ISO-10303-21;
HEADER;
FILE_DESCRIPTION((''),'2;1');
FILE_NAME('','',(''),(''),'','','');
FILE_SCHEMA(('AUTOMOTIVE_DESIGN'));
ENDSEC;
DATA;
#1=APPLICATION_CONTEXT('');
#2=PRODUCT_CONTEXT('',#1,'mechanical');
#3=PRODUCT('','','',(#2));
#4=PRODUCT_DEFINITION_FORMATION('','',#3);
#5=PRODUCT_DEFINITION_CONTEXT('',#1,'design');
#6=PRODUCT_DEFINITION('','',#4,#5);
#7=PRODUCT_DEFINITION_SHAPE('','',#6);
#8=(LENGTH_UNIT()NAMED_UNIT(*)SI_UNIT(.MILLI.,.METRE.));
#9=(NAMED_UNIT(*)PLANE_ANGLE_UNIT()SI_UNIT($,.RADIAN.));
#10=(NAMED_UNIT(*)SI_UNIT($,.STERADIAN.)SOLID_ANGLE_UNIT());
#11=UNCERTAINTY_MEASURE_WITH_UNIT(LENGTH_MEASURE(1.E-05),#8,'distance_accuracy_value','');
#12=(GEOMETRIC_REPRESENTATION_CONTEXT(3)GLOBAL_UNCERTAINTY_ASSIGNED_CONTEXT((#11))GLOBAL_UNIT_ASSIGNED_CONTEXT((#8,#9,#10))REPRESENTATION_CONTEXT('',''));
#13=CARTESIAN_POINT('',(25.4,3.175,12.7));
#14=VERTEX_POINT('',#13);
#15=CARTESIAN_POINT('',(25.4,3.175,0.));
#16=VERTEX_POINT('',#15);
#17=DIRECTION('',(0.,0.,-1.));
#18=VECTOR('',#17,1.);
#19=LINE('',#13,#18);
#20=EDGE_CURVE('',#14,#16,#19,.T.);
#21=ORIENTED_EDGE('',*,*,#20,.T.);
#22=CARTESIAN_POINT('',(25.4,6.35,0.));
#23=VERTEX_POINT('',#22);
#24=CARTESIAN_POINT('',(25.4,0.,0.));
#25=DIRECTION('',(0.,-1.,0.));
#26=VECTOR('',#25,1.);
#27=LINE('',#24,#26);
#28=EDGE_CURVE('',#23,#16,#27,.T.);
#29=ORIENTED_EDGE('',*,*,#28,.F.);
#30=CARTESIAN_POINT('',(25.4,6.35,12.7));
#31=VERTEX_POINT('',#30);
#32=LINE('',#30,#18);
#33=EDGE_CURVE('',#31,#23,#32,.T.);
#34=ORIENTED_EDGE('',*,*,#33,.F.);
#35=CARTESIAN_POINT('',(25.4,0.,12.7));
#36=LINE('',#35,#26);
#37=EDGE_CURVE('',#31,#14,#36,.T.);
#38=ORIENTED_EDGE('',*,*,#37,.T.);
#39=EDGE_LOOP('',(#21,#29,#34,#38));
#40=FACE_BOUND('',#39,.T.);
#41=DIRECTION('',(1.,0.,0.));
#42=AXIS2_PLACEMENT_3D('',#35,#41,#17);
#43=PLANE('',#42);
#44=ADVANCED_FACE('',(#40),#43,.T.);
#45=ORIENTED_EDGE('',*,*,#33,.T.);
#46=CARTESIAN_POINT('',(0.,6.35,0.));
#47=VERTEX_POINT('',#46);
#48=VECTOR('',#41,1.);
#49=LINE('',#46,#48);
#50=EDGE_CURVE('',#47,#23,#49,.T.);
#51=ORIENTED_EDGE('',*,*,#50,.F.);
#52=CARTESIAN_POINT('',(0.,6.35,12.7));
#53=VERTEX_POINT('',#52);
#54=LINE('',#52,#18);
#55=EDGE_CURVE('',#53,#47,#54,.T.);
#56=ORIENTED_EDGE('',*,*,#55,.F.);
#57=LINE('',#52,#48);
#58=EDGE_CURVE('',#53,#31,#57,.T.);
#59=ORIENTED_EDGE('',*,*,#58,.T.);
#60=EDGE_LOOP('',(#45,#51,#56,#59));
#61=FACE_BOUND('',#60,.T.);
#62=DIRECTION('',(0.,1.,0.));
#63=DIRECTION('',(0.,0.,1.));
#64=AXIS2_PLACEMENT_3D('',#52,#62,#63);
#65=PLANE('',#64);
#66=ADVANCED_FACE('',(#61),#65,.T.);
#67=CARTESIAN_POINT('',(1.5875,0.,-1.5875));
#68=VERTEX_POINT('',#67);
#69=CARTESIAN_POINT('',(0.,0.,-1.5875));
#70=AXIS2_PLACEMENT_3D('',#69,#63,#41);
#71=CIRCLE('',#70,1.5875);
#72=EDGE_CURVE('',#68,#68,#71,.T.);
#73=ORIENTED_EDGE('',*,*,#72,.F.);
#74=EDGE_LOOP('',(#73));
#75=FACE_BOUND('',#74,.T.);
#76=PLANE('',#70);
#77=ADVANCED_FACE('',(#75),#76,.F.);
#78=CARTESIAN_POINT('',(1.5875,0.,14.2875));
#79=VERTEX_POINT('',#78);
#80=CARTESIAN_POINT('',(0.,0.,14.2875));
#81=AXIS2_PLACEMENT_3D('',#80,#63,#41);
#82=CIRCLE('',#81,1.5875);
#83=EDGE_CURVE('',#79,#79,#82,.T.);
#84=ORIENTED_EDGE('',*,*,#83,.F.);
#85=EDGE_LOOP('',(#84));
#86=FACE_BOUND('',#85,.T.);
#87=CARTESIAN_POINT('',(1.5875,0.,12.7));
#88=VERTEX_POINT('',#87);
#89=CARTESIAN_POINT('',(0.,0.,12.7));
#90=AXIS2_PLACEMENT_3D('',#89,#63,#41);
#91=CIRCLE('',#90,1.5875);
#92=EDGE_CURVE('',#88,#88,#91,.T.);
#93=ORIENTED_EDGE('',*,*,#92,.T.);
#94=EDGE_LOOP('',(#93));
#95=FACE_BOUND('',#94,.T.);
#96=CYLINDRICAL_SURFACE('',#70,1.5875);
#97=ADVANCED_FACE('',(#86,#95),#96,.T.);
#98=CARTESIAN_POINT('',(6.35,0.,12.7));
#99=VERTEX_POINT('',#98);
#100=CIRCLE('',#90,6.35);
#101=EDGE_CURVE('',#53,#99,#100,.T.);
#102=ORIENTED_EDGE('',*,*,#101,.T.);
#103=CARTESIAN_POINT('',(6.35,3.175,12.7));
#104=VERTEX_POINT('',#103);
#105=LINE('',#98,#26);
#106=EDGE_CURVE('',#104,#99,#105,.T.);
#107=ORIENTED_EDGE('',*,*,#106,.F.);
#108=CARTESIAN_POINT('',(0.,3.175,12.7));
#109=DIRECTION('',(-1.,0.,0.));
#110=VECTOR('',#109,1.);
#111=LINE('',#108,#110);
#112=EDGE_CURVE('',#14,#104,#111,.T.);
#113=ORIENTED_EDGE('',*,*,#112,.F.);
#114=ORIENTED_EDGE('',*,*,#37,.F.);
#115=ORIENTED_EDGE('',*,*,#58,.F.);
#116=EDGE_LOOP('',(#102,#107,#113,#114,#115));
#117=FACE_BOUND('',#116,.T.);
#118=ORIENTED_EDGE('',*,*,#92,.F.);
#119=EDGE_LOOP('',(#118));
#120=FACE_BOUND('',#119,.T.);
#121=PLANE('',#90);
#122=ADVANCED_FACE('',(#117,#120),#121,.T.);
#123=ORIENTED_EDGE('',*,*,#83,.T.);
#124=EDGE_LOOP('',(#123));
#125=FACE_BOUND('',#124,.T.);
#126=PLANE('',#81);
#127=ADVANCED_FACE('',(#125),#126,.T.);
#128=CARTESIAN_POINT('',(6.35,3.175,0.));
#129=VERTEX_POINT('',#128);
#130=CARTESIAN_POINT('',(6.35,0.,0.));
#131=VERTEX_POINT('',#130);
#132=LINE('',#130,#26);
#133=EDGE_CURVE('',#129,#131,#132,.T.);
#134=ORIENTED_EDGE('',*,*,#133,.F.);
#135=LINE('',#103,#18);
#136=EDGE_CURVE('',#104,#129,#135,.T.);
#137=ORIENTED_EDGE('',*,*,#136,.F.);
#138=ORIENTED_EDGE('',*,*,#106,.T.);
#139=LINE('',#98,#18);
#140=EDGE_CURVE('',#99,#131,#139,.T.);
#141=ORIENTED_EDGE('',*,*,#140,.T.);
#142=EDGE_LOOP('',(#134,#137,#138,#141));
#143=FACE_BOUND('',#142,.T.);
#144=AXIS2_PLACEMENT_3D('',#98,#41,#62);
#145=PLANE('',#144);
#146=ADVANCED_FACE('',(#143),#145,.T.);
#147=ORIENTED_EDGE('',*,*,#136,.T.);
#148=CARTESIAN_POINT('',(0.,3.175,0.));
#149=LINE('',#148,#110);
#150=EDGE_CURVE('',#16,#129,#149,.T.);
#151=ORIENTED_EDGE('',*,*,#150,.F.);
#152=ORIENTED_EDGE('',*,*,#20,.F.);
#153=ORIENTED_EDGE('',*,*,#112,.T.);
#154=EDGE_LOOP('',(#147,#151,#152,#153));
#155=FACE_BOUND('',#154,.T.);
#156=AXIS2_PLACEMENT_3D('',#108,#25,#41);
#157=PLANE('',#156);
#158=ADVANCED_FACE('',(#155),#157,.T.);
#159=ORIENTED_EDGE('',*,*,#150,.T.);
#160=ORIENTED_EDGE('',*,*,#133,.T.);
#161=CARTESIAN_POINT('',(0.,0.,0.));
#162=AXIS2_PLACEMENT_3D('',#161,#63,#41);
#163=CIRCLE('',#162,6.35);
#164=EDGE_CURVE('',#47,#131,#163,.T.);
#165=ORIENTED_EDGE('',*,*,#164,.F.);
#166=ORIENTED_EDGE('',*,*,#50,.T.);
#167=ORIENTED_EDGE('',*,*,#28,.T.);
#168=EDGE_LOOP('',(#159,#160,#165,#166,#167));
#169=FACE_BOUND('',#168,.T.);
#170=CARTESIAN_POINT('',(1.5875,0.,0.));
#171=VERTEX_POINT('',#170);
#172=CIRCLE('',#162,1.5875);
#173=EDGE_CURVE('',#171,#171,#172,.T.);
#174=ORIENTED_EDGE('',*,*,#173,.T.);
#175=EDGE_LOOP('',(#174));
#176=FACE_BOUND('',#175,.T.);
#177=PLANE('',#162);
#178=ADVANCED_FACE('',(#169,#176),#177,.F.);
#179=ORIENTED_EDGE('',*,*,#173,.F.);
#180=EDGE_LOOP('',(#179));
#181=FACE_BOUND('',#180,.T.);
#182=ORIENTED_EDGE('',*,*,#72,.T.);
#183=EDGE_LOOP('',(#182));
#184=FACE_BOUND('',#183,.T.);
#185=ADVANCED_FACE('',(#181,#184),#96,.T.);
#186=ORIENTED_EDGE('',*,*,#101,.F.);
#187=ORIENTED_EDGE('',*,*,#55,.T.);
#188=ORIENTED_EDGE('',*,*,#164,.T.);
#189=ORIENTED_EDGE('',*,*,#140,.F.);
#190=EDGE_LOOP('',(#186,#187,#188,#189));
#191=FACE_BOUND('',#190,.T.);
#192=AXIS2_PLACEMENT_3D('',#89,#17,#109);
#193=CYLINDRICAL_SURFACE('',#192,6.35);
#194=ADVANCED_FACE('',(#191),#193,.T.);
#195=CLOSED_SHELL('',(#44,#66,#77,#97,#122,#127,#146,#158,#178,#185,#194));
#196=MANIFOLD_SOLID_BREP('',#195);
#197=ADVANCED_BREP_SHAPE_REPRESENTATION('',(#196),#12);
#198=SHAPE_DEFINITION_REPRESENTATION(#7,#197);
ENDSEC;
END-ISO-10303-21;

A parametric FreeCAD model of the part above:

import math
import FreeCAD as App
import Part
import Sketcher
Q = App.Units.Quantity

doc = App.newDocument("Part")
body = doc.addObject("PartDesign::Body", "Body")

# Sketch on XY plane
sketch1 = body.newObject("Sketcher::SketchObject", "Sketch")
sketch1.AttachmentSupport = (doc.getObject("XY_Plane"), [""])
sketch1.MapMode = "FlatFace"
sketch1.addGeometry(Part.ArcOfCircle(Part.Circle(App.Vector(0, 0, 0), App.Vector(0, 0, 1), 6.3), math.radians(90), math.radians(360)), False)
sketch1.addGeometry(Part.LineSegment(App.Vector(6.3, 0, 0), App.Vector(6.3, 3.2, 0)), False)
sketch1.addGeometry(Part.LineSegment(App.Vector(6.3, 3.2, 0), App.Vector(25.4, 3.2, 0)), False)
sketch1.addGeometry(Part.LineSegment(App.Vector(25.4, 3.2, 0), App.Vector(25.4, 6.3, 0)), False)
sketch1.addGeometry(Part.LineSegment(App.Vector(25.4, 6.3, 0), App.Vector(0, 6.3, 0)), False)
sketch1.addGeometry(Part.Circle(App.Vector(0, 0, 0), App.Vector(0, 0, 1), 1.6), False)
sketch1.addConstraint(Sketcher.Constraint("Tangent", 0, 2, 1, 1))
sketch1.addConstraint(Sketcher.Constraint("Coincident", 1, 2, 2, 1))
sketch1.addConstraint(Sketcher.Constraint("Coincident", 2, 2, 3, 1))
sketch1.addConstraint(Sketcher.Constraint("Coincident", 3, 2, 4, 1))
sketch1.addConstraint(Sketcher.Constraint("Tangent", 4, 2, 0, 1))
sketch1.addConstraint(Sketcher.Constraint("Vertical", 1))
sketch1.addConstraint(Sketcher.Constraint("Horizontal", 2))
sketch1.addConstraint(Sketcher.Constraint("Vertical", 3))
sketch1.addConstraint(Sketcher.Constraint("Horizontal", 4))
sketch1.addConstraint(Sketcher.Constraint("Coincident", 0, 3, -1, 1))
sketch1.addConstraint(Sketcher.Constraint("Coincident", 5, 3, -1, 1))
sketch1.addConstraint(Sketcher.Constraint("Equal", 1, 3))
sketch1.addConstraint(Sketcher.Constraint("DistanceX", 4, 2, 4, 1, Q("1 in")))
sketch1.addConstraint(Sketcher.Constraint("Radius", 0, Q("0.25 in")))
sketch1.addConstraint(Sketcher.Constraint("Diameter", 5, Q("0.125 in")))
pad1 = body.newObject("PartDesign::Pad", "Pad")
pad1.Profile = sketch1
pad1.Length = Q("0.5 in")

# Sketch on XY plane
sketch2 = body.newObject("Sketcher::SketchObject", "Sketch001")
sketch2.AttachmentSupport = (doc.getObject("XY_Plane"), [""])
sketch2.MapMode = "FlatFace"
sketch2.addGeometry(Part.Circle(App.Vector(0, 0, 0), App.Vector(0, 0, 1), 1.6), False)
sketch2.addConstraint(Sketcher.Constraint("Coincident", 0, 3, -1, 1))
sketch2.addConstraint(Sketcher.Constraint("Diameter", 0, Q("0.125 in")))
pad2 = body.newObject("PartDesign::Pad", "Pad001")
pad2.Profile = sketch2
pad2.Type = "TwoLengths"
pad2.Length = Q("0.5625 in")
pad2.Length2 = Q("0.0625 in")

doc.recompute()
